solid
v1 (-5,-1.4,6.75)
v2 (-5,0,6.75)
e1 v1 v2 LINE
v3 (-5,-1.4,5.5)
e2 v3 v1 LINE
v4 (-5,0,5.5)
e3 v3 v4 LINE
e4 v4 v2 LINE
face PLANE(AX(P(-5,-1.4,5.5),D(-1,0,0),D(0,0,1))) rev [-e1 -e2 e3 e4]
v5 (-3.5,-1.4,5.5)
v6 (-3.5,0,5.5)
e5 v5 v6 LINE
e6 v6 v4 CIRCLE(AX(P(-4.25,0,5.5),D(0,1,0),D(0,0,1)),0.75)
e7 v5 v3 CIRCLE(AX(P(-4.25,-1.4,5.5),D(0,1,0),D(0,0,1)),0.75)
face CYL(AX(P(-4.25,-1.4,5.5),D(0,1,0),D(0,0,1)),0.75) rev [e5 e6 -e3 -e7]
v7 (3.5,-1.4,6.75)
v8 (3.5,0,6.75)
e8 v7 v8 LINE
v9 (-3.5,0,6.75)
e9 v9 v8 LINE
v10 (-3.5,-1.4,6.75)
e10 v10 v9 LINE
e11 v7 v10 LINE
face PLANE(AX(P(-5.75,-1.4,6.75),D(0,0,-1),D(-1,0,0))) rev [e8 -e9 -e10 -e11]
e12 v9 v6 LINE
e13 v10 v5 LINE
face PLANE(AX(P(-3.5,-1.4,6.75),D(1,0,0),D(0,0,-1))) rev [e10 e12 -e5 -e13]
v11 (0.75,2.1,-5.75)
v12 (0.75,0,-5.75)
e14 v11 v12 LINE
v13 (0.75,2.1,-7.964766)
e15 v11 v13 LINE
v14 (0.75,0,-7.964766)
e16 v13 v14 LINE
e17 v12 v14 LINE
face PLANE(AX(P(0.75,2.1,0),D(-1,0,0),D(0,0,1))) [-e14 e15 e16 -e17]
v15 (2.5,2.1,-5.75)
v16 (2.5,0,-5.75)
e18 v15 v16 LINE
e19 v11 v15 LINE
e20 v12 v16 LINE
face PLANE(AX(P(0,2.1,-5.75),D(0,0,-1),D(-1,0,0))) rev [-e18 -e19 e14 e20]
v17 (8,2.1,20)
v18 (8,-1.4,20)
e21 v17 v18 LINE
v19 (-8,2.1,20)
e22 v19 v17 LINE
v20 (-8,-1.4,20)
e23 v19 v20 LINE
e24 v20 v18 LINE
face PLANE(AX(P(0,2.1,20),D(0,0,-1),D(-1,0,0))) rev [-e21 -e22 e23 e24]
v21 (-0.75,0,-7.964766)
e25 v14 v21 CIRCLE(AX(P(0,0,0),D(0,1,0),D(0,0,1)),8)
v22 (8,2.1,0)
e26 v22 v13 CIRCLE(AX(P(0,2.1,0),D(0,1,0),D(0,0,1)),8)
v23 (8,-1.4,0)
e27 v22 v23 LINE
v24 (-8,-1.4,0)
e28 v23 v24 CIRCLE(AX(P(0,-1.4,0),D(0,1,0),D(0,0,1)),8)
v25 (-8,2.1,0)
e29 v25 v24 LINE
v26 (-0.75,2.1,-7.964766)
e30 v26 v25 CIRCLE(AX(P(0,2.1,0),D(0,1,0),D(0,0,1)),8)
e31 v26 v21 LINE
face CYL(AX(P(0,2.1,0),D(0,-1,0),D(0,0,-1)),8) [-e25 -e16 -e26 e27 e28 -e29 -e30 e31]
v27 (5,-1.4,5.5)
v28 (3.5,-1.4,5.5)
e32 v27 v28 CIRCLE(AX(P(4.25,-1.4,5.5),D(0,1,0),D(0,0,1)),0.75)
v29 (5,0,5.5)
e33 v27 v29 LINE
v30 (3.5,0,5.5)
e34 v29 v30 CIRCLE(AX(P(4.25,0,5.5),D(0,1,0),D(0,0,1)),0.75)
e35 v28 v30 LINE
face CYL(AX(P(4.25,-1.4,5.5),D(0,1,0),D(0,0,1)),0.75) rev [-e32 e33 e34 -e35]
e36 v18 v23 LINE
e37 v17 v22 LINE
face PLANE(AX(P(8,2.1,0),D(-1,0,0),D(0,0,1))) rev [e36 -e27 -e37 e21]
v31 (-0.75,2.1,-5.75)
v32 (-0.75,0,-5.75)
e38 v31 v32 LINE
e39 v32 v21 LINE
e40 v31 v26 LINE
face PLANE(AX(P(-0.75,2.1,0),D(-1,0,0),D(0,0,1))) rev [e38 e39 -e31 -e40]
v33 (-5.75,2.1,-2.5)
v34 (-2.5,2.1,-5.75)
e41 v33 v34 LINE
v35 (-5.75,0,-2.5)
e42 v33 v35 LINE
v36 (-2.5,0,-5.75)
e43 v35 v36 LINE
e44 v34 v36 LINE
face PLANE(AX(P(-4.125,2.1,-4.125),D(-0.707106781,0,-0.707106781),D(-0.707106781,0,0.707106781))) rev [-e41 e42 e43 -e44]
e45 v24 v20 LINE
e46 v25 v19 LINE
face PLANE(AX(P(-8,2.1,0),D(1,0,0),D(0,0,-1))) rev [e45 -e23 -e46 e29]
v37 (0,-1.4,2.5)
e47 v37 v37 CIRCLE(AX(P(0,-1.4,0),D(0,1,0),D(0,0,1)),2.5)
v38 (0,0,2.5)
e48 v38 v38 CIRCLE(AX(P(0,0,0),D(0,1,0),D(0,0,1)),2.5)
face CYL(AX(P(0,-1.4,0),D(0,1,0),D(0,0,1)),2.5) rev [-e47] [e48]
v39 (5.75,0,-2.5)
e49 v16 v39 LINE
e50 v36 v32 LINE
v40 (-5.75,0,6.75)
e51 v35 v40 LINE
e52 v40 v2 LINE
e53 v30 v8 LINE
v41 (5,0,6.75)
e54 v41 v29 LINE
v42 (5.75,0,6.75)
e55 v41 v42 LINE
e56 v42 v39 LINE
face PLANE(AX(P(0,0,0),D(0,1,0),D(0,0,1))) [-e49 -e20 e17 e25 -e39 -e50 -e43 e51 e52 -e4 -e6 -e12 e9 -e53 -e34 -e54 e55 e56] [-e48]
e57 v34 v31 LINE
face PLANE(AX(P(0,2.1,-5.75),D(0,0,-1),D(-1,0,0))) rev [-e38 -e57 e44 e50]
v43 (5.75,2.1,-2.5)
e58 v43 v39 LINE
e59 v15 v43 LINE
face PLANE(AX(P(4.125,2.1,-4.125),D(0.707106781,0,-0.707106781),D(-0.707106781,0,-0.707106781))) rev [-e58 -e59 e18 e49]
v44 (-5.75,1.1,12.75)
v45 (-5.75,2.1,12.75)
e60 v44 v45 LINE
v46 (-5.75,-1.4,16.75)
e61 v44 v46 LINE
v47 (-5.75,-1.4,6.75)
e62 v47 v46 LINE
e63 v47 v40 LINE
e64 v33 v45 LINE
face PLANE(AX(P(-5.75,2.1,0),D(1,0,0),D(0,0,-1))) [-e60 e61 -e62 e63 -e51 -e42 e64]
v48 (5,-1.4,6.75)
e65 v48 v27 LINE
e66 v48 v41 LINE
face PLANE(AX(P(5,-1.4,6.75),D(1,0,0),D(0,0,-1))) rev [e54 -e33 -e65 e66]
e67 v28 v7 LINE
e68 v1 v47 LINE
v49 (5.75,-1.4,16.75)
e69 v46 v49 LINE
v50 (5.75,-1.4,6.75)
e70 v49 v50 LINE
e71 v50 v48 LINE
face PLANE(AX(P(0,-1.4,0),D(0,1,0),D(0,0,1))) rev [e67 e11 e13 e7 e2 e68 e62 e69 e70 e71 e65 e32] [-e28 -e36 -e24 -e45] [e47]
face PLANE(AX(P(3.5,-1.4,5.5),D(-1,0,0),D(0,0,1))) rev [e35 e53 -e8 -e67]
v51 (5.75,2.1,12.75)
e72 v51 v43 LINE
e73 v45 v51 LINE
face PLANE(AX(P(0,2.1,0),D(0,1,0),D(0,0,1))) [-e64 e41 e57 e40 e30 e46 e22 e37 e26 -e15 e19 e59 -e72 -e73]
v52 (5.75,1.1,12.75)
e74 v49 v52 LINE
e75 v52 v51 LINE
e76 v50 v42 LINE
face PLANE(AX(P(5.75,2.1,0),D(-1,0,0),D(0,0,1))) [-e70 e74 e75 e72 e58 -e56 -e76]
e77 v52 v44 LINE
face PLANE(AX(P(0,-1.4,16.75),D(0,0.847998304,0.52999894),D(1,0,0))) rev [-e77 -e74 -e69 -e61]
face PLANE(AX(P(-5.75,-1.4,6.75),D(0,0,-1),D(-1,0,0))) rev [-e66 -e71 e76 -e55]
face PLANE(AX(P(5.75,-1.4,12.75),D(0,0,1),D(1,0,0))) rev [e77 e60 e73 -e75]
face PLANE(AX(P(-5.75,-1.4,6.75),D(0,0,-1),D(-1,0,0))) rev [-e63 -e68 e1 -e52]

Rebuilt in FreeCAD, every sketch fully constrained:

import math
import FreeCAD as App
import Part
import Sketcher

V = App.Vector


def edges_at(feature, points):
    """Names of the edges that pass closest to the given points."""
    edges = feature.Shape.Edges
    near = lambda p: min(range(len(edges)), key=lambda i: edges[i].distToShape(Part.Vertex(*p))[0])
    return sorted({f"Edge{near(p) + 1}" for p in points})

doc = App.newDocument("Part")
params = doc.addObject("Spreadsheet::Sheet", "Params")
for row, (alias, value) in enumerate([
    ("sketch1_radius", "8 mm"),
    ("sketch1_height", "20 mm"),
    ("sketch1_width", "11.5 mm"),
    ("sketch1_height2", "9.25 mm"),
    ("pad1_length", "2.1 mm"),
    ("sketch2_diameter", "5 mm"),
    ("sketch2_radius", "8 mm"),
    ("sketch2_height", "20 mm"),
    ("sketch2_radius2", "0.75 mm"),
    ("sketch2_height2", "1.25 mm"),
    ("pad2_length", "1.4 mm"),
    ("sketch3_height", "6 mm"),
    ("sketch3_width", "11.5 mm"),
    ("chamfer_size", "2.5 mm"),
    ("chamfer_size2", "4 mm"),
], start=1):
    params.set(f"A{row}", alias)
    params.set(f"B{row}", "=" + value)
    params.setAlias(f"B{row}", alias)

body = doc.addObject("PartDesign::Body", "Body")

sketch1 = doc.addObject("Sketcher::SketchObject", "Sketch")
body.addObject(sketch1)
sketch1.AttachmentSupport = (doc.XZ_Plane, [""])
sketch1.MapMode = "FlatFace"
sketch1.addGeometry(Part.LineSegment(V(-5.75, -2.5, 0), V(-2.5, -5.75, 0)), False)
sketch1.addGeometry(Part.LineSegment(V(-2.5, -5.75, 0), V(-0.75, -5.75, 0)), False)
sketch1.addGeometry(Part.LineSegment(V(-0.75, -5.75, 0), V(-0.75, -7.964766, 0)), False)
sketch1.addGeometry(Part.ArcOfCircle(Part.Circle(V(0, 0, 0), V(0, 0, 1), 8), math.radians(180), math.radians(264.620621)), False)
sketch1.addGeometry(Part.LineSegment(V(-8, 0, 0), V(-8, 20, 0)), False)
sketch1.addGeometry(Part.LineSegment(V(-8, 20, 0), V(8, 20, 0)), False)
sketch1.addGeometry(Part.LineSegment(V(8, 20, 0), V(8, 0, 0)), False)
sketch1.addGeometry(Part.ArcOfCircle(Part.Circle(V(0, 0, 0), V(0, 0, 1), 8), math.radians(-84.620621), math.radians(0)), False)
sketch1.addGeometry(Part.LineSegment(V(0.75, -7.964766, 0), V(0.75, -5.75, 0)), False)
sketch1.addGeometry(Part.LineSegment(V(0.75, -5.75, 0), V(2.5, -5.75, 0)), False)
sketch1.addGeometry(Part.LineSegment(V(2.5, -5.75, 0), V(5.75, -2.5, 0)), False)
sketch1.addGeometry(Part.LineSegment(V(5.75, -2.5, 0), V(5.75, 6.75, 0)), False)
sketch1.addGeometry(Part.LineSegment(V(5.75, 6.75, 0), V(-5.75, 6.75, 0)), False)
sketch1.addGeometry(Part.LineSegment(V(-5.75, 6.75, 0), V(-5.75, -2.5, 0)), False)
sketch1.addConstraint(Sketcher.Constraint("Coincident", 0, 2, 1, 1))
sketch1.addConstraint(Sketcher.Constraint("Coincident", 1, 2, 2, 1))
sketch1.addConstraint(Sketcher.Constraint("Coincident", 2, 2, 3, 2))
sketch1.addConstraint(Sketcher.Constraint("Tangent", 3, 1, 4, 1))
sketch1.addConstraint(Sketcher.Constraint("Coincident", 4, 2, 5, 1))
sketch1.addConstraint(Sketcher.Constraint("Coincident", 5, 2, 6, 1))
sketch1.addConstraint(Sketcher.Constraint("Tangent", 6, 2, 7, 2))
sketch1.addConstraint(Sketcher.Constraint("Coincident", 7, 1, 8, 1))
sketch1.addConstraint(Sketcher.Constraint("Coincident", 8, 2, 9, 1))
sketch1.addConstraint(Sketcher.Constraint("Coincident", 9, 2, 10, 1))
sketch1.addConstraint(Sketcher.Constraint("Coincident", 10, 2, 11, 1))
sketch1.addConstraint(Sketcher.Constraint("Coincident", 11, 2, 12, 1))
sketch1.addConstraint(Sketcher.Constraint("Coincident", 12, 2, 13, 1))
sketch1.addConstraint(Sketcher.Constraint("Coincident", 13, 2, 0, 1))
sketch1.addConstraint(Sketcher.Constraint("Horizontal", 1))
sketch1.addConstraint(Sketcher.Constraint("Vertical", 2))
sketch1.addConstraint(Sketcher.Constraint("Vertical", 4))
sketch1.addConstraint(Sketcher.Constraint("Horizontal", 5))
sketch1.addConstraint(Sketcher.Constraint("Vertical", 6))
sketch1.addConstraint(Sketcher.Constraint("Vertical", 8))
sketch1.addConstraint(Sketcher.Constraint("Horizontal", 9))
sketch1.addConstraint(Sketcher.Constraint("Vertical", 11))
sketch1.addConstraint(Sketcher.Constraint("Horizontal", 12))
sketch1.addConstraint(Sketcher.Constraint("Vertical", 13))
sketch1.addConstraint(Sketcher.Constraint("Coincident", 3, 3, -1, 1))
sketch1.addConstraint(Sketcher.Constraint("Coincident", 7, 3, -1, 1))
sketch1.addConstraint(Sketcher.Constraint("Equal", 3, 7))
sketch1.addConstraint(Sketcher.Constraint("Symmetric", 1, 2, 8, 2, -2))
sketch1.addConstraint(Sketcher.Constraint("Symmetric", 10, 2, 13, 2, -2))
sketch1.addConstraint(Sketcher.Constraint("Perpendicular", 0, 10))
sketch1.addConstraint(Sketcher.Constraint("Equal", 1, 9))
sketch1.addConstraint(Sketcher.Constraint("Radius", 3, 8.0))
sketch1.addConstraint(Sketcher.Constraint("DistanceY", 4, 1, 4, 2, 20.0))
sketch1.addConstraint(Sketcher.Constraint("DistanceX", 12, 2, 12, 1, 11.5))
sketch1.addConstraint(Sketcher.Constraint("DistanceX", 0, 2, 9, 2, 5.0))
sketch1.addConstraint(Sketcher.Constraint("DistanceX", 8, 2, 10, 2, 5.0))
sketch1.addConstraint(Sketcher.Constraint("DistanceY", 11, 1, 11, 2, 9.25))
sketch1.addConstraint(Sketcher.Constraint("DistanceY", 10, 2, -1, 1, 2.5))
sketch1.setExpression("Constraints[31]", "Params.sketch1_radius")
sketch1.setExpression("Constraints[32]", "Params.sketch1_height")
sketch1.setExpression("Constraints[33]", "Params.sketch1_width")
sketch1.setExpression("Constraints[36]", "Params.sketch1_height2")
pad1 = doc.addObject("PartDesign::Pad", "Pad")
body.addObject(pad1)
pad1.Profile = sketch1
pad1.setExpression("Length", "Params.pad1_length")
pad1.Reversed = True

sketch2 = doc.addObject("Sketcher::SketchObject", "Sketch001")
body.addObject(sketch2)
sketch2.AttachmentSupport = (doc.XZ_Plane, [""])
sketch2.MapMode = "FlatFace"
sketch2.AttachmentOffset = App.Placement(V(0, 0, 1.4), App.Rotation())
sketch2.addGeometry(Part.LineSegment(V(8, 20, 0), V(8, 0, 0)), False)
sketch2.addGeometry(Part.ArcOfCircle(Part.Circle(V(0, 0, 0), V(0, 0, 1), 8), math.radians(180), math.radians(360)), False)
sketch2.addGeometry(Part.LineSegment(V(-8, 0, 0), V(-8, 20, 0)), False)
sketch2.addGeometry(Part.LineSegment(V(-8, 20, 0), V(8, 20, 0)), False)
sketch2.addGeometry(Part.ArcOfCircle(Part.Circle(V(4.25, 5.5, 0), V(0, 0, 1), 0.75), math.radians(180), math.radians(360)), False)
sketch2.addGeometry(Part.LineSegment(V(5, 5.5, 0), V(5, 6.75, 0)), False)
sketch2.addGeometry(Part.LineSegment(V(5, 6.75, 0), V(3.5, 6.75, 0)), False)
sketch2.addGeometry(Part.LineSegment(V(3.5, 6.75, 0), V(3.5, 5.5, 0)), False)
sketch2.addGeometry(Part.ArcOfCircle(Part.Circle(V(-4.25, 5.5, 0), V(0, 0, 1), 0.75), math.radians(180), math.radians(360)), False)
sketch2.addGeometry(Part.LineSegment(V(-3.5, 5.5, 0), V(-3.5, 6.75, 0)), False)
sketch2.addGeometry(Part.LineSegment(V(-3.5, 6.75, 0), V(-5, 6.75, 0)), False)
sketch2.addGeometry(Part.LineSegment(V(-5, 6.75, 0), V(-5, 5.5, 0)), False)
sketch2.addGeometry(Part.Circle(V(0, 0, 0), V(0, 0, 1), 2.5), False)
sketch2.addConstraint(Sketcher.Constraint("Tangent", 0, 2, 1, 2))
sketch2.addConstraint(Sketcher.Constraint("Tangent", 1, 1, 2, 1))
sketch2.addConstraint(Sketcher.Constraint("Coincident", 2, 2, 3, 1))
sketch2.addConstraint(Sketcher.Constraint("Coincident", 3, 2, 0, 1))
sketch2.addConstraint(Sketcher.Constraint("Tangent", 4, 2, 5, 1))
sketch2.addConstraint(Sketcher.Constraint("Coincident", 5, 2, 6, 1))
sketch2.addConstraint(Sketcher.Constraint("Coincident", 6, 2, 7, 1))
sketch2.addConstraint(Sketcher.Constraint("Tangent", 7, 2, 4, 1))
sketch2.addConstraint(Sketcher.Constraint("Tangent", 8, 2, 9, 1))
sketch2.addConstraint(Sketcher.Constraint("Coincident", 9, 2, 10, 1))
sketch2.addConstraint(Sketcher.Constraint("Coincident", 10, 2, 11, 1))
sketch2.addConstraint(Sketcher.Constraint("Tangent", 11, 2, 8, 1))
sketch2.addConstraint(Sketcher.Constraint("Vertical", 0))
sketch2.addConstraint(Sketcher.Constraint("Vertical", 2))
sketch2.addConstraint(Sketcher.Constraint("Horizontal", 3))
sketch2.addConstraint(Sketcher.Constraint("Vertical", 5))
sketch2.addConstraint(Sketcher.Constraint("Horizontal", 6))
sketch2.addConstraint(Sketcher.Constraint("Vertical", 7))
sketch2.addConstraint(Sketcher.Constraint("Vertical", 9))
sketch2.addConstraint(Sketcher.Constraint("Horizontal", 10))
sketch2.addConstraint(Sketcher.Constraint("Vertical", 11))
sketch2.addConstraint(Sketcher.Constraint("Coincident", 1, 3, -1, 1))
sketch2.addConstraint(Sketcher.Constraint("Coincident", 12, 3, -1, 1))
sketch2.addConstraint(Sketcher.Constraint("Equal", 4, 8))
sketch2.addConstraint(Sketcher.Constraint("Symmetric", 4, 3, 8, 3, -2))
sketch2.addConstraint(Sketcher.Constraint("Horizontal", 6, 2, 9, 2))
sketch2.addConstraint(Sketcher.Constraint("Diameter", 12, 5.0))
sketch2.addConstraint(Sketcher.Constraint("Radius", 1, 8.0))
sketch2.addConstraint(Sketcher.Constraint("DistanceY", 0, 2, 0, 1, 20.0))
sketch2.addConstraint(Sketcher.Constraint("Radius", 4, 0.75))
sketch2.addConstraint(Sketcher.Constraint("DistanceX", -1, 1, 4, 2, 5.0))
sketch2.addConstraint(Sketcher.Constraint("DistanceY", 5, 1, 5, 2, 1.25))
sketch2.addConstraint(Sketcher.Constraint("DistanceY", -1, 1, 4, 3, 5.5))
sketch2.setExpression("Constraints[26]", "Params.sketch2_diameter")
sketch2.setExpression("Constraints[27]", "Params.sketch2_radius")
sketch2.setExpression("Constraints[28]", "Params.sketch2_height")
sketch2.setExpression("Constraints[29]", "Params.sketch2_radius2")
sketch2.setExpression("Constraints[31]", "Params.sketch2_height2")
pad2 = doc.addObject("PartDesign::Pad", "Pad001")
body.addObject(pad2)
pad2.Profile = sketch2
pad2.setExpression("Length", "Params.pad2_length")
pad2.Reversed = True

sketch3 = doc.addObject("Sketcher::SketchObject", "Sketch002")
body.addObject(sketch3)
sketch3.AttachmentSupport = (doc.XZ_Plane, [""])
sketch3.MapMode = "FlatFace"
sketch3.AttachmentOffset = App.Placement(V(0, 0, -2.1), App.Rotation())
sketch3.addGeometry(Part.LineSegment(V(-5.75, 6.75, 0), V(-5.75, 12.75, 0)), False)
sketch3.addGeometry(Part.LineSegment(V(-5.75, 12.75, 0), V(5.75, 12.75, 0)), False)
sketch3.addGeometry(Part.LineSegment(V(5.75, 12.75, 0), V(5.75, 6.75, 0)), False)
sketch3.addGeometry(Part.LineSegment(V(5.75, 6.75, 0), V(-5.75, 6.75, 0)), False)
sketch3.addConstraint(Sketcher.Constraint("Coincident", 0, 2, 1, 1))
sketch3.addConstraint(Sketcher.Constraint("Coincident", 1, 2, 2, 1))
sketch3.addConstraint(Sketcher.Constraint("Coincident", 2, 2, 3, 1))
sketch3.addConstraint(Sketcher.Constraint("Coincident", 3, 2, 0, 1))
sketch3.addConstraint(Sketcher.Constraint("Vertical", 0))
sketch3.addConstraint(Sketcher.Constraint("Horizontal", 1))
sketch3.addConstraint(Sketcher.Constraint("Vertical", 2))
sketch3.addConstraint(Sketcher.Constraint("Horizontal", 3))
sketch3.addConstraint(Sketcher.Constraint("DistanceY", 0, 1, 0, 2, 6.0))
sketch3.addConstraint(Sketcher.Constraint("DistanceX", 1, 1, 1, 2, 11.5))
sketch3.addConstraint(Sketcher.Constraint("DistanceX", 0, 2, -1, 1, 5.75))
sketch3.addConstraint(Sketcher.Constraint("DistanceY", -1, 1, 0, 2, 12.75))
sketch3.setExpression("Constraints[8]", "Params.sketch3_height")
sketch3.setExpression("Constraints[9]", "Params.sketch3_width")
pocket1 = doc.addObject("PartDesign::Pocket", "Pocket")
body.addObject(pocket1)
pocket1.Profile = sketch3
pocket1.Type = "ThroughAll"
pocket1.Reversed = True
doc.recompute()

chamfer = doc.addObject("PartDesign::Chamfer", "Chamfer")
body.addObject(chamfer)
chamfer.Base = (pocket1, edges_at(pocket1, [(0, -1.4, 12.75)]))
chamfer.ChamferType = "Two distances"
chamfer.setExpression("Size", "Params.chamfer_size")
chamfer.setExpression("Size2", "Params.chamfer_size2")

doc.recompute()
